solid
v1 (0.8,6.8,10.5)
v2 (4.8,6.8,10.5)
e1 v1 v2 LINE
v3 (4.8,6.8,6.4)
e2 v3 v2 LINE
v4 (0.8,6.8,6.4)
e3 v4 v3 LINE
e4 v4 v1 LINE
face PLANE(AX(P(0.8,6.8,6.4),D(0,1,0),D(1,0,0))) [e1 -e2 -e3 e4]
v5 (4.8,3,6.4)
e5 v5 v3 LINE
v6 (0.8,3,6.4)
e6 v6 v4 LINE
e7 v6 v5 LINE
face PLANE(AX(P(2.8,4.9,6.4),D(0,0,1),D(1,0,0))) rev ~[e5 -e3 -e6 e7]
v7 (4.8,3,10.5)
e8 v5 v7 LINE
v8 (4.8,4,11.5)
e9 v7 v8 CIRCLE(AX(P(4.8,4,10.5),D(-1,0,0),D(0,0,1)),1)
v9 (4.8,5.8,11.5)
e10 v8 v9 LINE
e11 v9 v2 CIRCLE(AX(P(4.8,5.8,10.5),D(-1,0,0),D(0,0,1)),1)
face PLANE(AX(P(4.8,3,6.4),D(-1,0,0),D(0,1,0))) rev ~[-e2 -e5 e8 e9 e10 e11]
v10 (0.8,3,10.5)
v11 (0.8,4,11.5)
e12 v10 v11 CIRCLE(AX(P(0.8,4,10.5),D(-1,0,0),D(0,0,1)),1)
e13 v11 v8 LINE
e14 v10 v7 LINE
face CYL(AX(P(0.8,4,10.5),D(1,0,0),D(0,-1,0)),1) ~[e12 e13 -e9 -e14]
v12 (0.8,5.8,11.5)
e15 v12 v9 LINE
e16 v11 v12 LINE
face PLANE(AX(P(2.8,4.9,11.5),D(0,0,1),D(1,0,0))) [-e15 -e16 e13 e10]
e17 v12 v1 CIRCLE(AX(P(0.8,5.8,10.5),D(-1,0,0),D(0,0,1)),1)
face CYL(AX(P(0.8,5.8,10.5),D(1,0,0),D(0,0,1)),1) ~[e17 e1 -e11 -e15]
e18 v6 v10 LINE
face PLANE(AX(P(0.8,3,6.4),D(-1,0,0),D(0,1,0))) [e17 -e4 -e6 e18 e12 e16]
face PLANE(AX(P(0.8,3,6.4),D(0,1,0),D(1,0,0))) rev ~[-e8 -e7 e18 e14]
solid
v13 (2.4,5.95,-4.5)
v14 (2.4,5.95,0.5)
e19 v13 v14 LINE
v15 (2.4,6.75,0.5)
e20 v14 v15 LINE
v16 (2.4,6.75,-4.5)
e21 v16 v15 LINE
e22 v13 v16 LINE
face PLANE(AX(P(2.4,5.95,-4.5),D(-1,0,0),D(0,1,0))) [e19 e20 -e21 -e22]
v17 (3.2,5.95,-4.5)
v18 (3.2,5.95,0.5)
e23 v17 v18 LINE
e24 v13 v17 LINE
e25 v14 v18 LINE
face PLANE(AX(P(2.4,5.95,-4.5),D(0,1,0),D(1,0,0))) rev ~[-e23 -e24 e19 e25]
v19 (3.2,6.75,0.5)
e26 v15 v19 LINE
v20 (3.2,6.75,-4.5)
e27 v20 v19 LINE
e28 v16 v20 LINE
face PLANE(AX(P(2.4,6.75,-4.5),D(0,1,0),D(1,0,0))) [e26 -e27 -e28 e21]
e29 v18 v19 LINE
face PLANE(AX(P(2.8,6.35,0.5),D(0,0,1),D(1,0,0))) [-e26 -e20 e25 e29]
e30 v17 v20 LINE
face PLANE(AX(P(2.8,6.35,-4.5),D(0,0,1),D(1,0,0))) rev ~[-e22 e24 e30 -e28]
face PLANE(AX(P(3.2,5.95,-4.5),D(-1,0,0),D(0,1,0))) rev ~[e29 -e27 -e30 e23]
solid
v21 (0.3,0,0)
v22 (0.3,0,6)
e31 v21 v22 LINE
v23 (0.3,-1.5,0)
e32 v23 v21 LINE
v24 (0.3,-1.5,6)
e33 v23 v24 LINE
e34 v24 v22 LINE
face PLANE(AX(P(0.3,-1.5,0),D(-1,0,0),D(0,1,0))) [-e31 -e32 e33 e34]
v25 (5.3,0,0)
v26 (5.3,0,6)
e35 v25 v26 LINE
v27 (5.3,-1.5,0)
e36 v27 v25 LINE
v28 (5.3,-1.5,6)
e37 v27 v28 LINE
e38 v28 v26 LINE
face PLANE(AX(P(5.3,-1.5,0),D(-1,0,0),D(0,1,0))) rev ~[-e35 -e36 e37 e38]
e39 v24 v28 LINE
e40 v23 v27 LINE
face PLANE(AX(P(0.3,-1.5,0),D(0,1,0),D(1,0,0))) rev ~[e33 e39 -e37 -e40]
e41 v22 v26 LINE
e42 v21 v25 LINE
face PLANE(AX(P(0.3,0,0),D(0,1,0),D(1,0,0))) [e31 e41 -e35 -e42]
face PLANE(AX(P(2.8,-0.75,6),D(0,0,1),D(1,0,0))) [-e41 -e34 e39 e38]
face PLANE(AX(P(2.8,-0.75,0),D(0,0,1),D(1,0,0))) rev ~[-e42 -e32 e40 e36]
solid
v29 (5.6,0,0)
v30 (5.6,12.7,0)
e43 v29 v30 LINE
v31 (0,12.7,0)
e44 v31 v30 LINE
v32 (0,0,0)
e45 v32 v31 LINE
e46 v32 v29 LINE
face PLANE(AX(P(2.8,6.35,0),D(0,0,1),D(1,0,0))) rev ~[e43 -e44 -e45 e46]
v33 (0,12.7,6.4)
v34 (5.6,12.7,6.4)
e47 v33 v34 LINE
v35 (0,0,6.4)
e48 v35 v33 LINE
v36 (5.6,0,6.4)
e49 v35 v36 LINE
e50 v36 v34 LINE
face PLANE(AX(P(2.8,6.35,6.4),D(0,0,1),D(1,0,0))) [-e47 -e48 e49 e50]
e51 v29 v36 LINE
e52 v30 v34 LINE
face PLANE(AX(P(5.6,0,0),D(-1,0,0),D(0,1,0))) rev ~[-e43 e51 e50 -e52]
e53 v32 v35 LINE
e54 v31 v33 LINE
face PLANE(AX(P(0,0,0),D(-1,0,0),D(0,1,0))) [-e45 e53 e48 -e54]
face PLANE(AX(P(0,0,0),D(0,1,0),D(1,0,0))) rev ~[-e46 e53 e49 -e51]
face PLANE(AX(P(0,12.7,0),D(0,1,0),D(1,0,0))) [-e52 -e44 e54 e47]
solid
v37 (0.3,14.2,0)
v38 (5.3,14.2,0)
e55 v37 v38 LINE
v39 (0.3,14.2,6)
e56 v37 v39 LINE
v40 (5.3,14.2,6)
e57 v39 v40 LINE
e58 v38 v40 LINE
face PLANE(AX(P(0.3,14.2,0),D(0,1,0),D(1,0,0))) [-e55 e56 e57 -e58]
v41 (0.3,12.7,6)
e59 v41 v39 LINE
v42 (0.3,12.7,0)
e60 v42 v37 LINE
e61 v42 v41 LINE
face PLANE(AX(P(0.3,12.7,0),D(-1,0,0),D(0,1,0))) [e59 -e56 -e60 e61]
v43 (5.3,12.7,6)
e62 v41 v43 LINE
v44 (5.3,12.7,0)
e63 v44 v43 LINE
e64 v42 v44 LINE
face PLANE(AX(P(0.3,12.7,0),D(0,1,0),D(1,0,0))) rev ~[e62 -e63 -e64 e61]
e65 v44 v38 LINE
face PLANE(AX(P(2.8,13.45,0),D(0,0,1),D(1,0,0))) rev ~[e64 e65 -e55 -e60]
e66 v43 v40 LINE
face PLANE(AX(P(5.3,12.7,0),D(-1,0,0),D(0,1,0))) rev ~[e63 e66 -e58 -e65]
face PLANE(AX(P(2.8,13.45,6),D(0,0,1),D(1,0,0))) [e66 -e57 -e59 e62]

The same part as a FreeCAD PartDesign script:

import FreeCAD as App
import Part
import Sketcher
from FreeCAD import Vector
Q = App.Units.Quantity


def edges_at(feature, points):
    """Names of the edges that pass closest to the given points."""
    edges = feature.Shape.Edges
    near = lambda p: min(range(len(edges)), key=lambda i: edges[i].distToShape(Part.Vertex(*p))[0])
    return sorted({f"Edge{near(p) + 1}" for p in points})


def add_polygon(sketch, points):
    """Adds a closed chain of lines whose ends are joined by coincident constraints."""
    first, n = sketch.GeometryCount, len(points)
    for a, b in zip(points, points[1:] + points[:1]):
        sketch.addGeometry(Part.LineSegment(App.Vector(*a, 0), App.Vector(*b, 0)), False)
    for i in range(n):
        sketch.addConstraint(Sketcher.Constraint("Coincident", first + i, 2, first + (i + 1) % n, 1))

doc = App.newDocument("Part")
body = doc.addObject("PartDesign::Body", "Body")

sketch1 = body.newObject("Sketcher::SketchObject", "Sketch")
sketch1.AttachmentSupport = (doc.getObject("XY_Plane"), [""])
sketch1.MapMode = "FlatFace"
add_polygon(sketch1, [(0, 12.7), (0, 0), (5.6, 0), (5.6, 12.7)])
sketch1.addConstraint([
    Sketcher.Constraint("Vertical", 0),
    Sketcher.Constraint("Horizontal", 1),
    Sketcher.Constraint("Vertical", 2),
    Sketcher.Constraint("Horizontal", 3),
    Sketcher.Constraint("Coincident", 0, 2, -1, 1),
    Sketcher.Constraint("DistanceX", 1, 1, 1, 2, Q("5.6 mm")),
    Sketcher.Constraint("DistanceY", 0, 2, 0, 1, Q("12.7 mm")),
])
pad1 = body.newObject("PartDesign::Pad", "Pad")
pad1.Profile = sketch1
pad1.Length = 6.4
body2 = doc.addObject("PartDesign::Body", "Body001")

sketch2 = body2.newObject("Sketcher::SketchObject", "Sketch001")
sketch2.AttachmentSupport = (doc.getObject("XY_Plane001"), [""])
sketch2.MapMode = "FlatFace"
sketch2.AttachmentOffset = App.Placement(Vector(0, 0, 6.4), App.Rotation())
add_polygon(sketch2, [(0.8, 6.8), (0.8, 3), (4.8, 3), (4.8, 6.8)])
sketch2.addConstraint([
    Sketcher.Constraint("Vertical", 0),
    Sketcher.Constraint("Horizontal", 1),
    Sketcher.Constraint("Vertical", 2),
    Sketcher.Constraint("Horizontal", 3),
    Sketcher.Constraint("DistanceX", 1, 1, 1, 2, Q("4 mm")),
    Sketcher.Constraint("DistanceY", 0, 2, 0, 1, Q("3.8 mm")),
    Sketcher.Constraint("DistanceY", -1, 1, 0, 2, Q("3 mm")),
    Sketcher.Constraint("DistanceX", -1, 1, 0, 2, Q("0.8 mm")),
])
pad2 = body2.newObject("PartDesign::Pad", "Pad001")
pad2.Profile = sketch2
pad2.Length = 5.1
doc.recompute()

fillet = body2.newObject("PartDesign::Fillet", "Fillet")
fillet.Base = (pad2, edges_at(pad2, [(2.8, 3, 11.5)]))
fillet.Radius = 1
doc.recompute()

fillet2 = body2.newObject("PartDesign::Fillet", "Fillet001")
fillet2.Base = (fillet, edges_at(fillet, [(2.8, 6.8, 11.5)]))
fillet2.Radius = 1
body3 = doc.addObject("PartDesign::Body", "Body002")

sketch3 = body3.newObject("Sketcher::SketchObject", "Sketch002")
sketch3.AttachmentSupport = (doc.getObject("XY_Plane002"), [""])
sketch3.MapMode = "FlatFace"
sketch3.AttachmentOffset = App.Placement(Vector(0, 0, -4.5), App.Rotation())
add_polygon(sketch3, [(2.4, 6.75), (2.4, 5.95), (3.2, 5.95), (3.2, 6.75)])
sketch3.addConstraint([
    Sketcher.Constraint("Vertical", 0),
    Sketcher.Constraint("Horizontal", 1),
    Sketcher.Constraint("Vertical", 2),
    Sketcher.Constraint("Horizontal", 3),
    Sketcher.Constraint("Equal", 3, 0),
    Sketcher.Constraint("DistanceX", 1, 1, 1, 2, Q("0.8 mm")),
    Sketcher.Constraint("DistanceX", -1, 1, 0, 2, Q("2.4 mm")),
    Sketcher.Constraint("DistanceY", -1, 1, 0, 2, Q("5.95 mm")),
])
pad3 = body3.newObject("PartDesign::Pad", "Pad002")
pad3.Profile = sketch3
pad3.Length = 5
body4 = doc.addObject("PartDesign::Body", "Body003")

sketch4 = body4.newObject("Sketcher::SketchObject", "Sketch003")
sketch4.AttachmentSupport = (doc.getObject("XY_Plane003"), [""])
sketch4.MapMode = "FlatFace"
add_polygon(sketch4, [(0.3, 14.2), (0.3, 12.7), (5.3, 12.7), (5.3, 14.2)])
sketch4.addConstraint([
    Sketcher.Constraint("Vertical", 0),
    Sketcher.Constraint("Horizontal", 1),
    Sketcher.Constraint("Vertical", 2),
    Sketcher.Constraint("Horizontal", 3),
    Sketcher.Constraint("DistanceX", 1, 1, 1, 2, Q("5 mm")),
    Sketcher.Constraint("DistanceY", 0, 2, 0, 1, Q("1.5 mm")),
    Sketcher.Constraint("DistanceX", -1, 1, 0, 2, Q("0.3 mm")),
    Sketcher.Constraint("DistanceY", -1, 1, 0, 2, Q("12.7 mm")),
])
pad4 = body4.newObject("PartDesign::Pad", "Pad003")
pad4.Profile = sketch4
pad4.Length = 6
body5 = doc.addObject("PartDesign::Body", "Body004")

sketch5 = body5.newObject("Sketcher::SketchObject", "Sketch004")
sketch5.AttachmentSupport = (doc.getObject("XY_Plane004"), [""])
sketch5.MapMode = "FlatFace"
add_polygon(sketch5, [(0.3, 0), (0.3, -1.5), (5.3, -1.5), (5.3, 0)])
sketch5.addConstraint([
    Sketcher.Constraint("Vertical", 0),
    Sketcher.Constraint("Horizontal", 1),
    Sketcher.Constraint("Vertical", 2),
    Sketcher.Constraint("Horizontal", 3),
    Sketcher.Constraint("PointOnObject", 2, 2, -1),
    Sketcher.Constraint("DistanceX", 1, 1, 1, 2, Q("5 mm")),
    Sketcher.Constraint("DistanceY", 0, 2, 0, 1, Q("1.5 mm")),
    Sketcher.Constraint("DistanceX", -1, 1, 0, 2, Q("0.3 mm")),
])
pad5 = body5.newObject("PartDesign::Pad", "Pad004")
pad5.Profile = sketch5
pad5.Length = 6

doc.recompute()
